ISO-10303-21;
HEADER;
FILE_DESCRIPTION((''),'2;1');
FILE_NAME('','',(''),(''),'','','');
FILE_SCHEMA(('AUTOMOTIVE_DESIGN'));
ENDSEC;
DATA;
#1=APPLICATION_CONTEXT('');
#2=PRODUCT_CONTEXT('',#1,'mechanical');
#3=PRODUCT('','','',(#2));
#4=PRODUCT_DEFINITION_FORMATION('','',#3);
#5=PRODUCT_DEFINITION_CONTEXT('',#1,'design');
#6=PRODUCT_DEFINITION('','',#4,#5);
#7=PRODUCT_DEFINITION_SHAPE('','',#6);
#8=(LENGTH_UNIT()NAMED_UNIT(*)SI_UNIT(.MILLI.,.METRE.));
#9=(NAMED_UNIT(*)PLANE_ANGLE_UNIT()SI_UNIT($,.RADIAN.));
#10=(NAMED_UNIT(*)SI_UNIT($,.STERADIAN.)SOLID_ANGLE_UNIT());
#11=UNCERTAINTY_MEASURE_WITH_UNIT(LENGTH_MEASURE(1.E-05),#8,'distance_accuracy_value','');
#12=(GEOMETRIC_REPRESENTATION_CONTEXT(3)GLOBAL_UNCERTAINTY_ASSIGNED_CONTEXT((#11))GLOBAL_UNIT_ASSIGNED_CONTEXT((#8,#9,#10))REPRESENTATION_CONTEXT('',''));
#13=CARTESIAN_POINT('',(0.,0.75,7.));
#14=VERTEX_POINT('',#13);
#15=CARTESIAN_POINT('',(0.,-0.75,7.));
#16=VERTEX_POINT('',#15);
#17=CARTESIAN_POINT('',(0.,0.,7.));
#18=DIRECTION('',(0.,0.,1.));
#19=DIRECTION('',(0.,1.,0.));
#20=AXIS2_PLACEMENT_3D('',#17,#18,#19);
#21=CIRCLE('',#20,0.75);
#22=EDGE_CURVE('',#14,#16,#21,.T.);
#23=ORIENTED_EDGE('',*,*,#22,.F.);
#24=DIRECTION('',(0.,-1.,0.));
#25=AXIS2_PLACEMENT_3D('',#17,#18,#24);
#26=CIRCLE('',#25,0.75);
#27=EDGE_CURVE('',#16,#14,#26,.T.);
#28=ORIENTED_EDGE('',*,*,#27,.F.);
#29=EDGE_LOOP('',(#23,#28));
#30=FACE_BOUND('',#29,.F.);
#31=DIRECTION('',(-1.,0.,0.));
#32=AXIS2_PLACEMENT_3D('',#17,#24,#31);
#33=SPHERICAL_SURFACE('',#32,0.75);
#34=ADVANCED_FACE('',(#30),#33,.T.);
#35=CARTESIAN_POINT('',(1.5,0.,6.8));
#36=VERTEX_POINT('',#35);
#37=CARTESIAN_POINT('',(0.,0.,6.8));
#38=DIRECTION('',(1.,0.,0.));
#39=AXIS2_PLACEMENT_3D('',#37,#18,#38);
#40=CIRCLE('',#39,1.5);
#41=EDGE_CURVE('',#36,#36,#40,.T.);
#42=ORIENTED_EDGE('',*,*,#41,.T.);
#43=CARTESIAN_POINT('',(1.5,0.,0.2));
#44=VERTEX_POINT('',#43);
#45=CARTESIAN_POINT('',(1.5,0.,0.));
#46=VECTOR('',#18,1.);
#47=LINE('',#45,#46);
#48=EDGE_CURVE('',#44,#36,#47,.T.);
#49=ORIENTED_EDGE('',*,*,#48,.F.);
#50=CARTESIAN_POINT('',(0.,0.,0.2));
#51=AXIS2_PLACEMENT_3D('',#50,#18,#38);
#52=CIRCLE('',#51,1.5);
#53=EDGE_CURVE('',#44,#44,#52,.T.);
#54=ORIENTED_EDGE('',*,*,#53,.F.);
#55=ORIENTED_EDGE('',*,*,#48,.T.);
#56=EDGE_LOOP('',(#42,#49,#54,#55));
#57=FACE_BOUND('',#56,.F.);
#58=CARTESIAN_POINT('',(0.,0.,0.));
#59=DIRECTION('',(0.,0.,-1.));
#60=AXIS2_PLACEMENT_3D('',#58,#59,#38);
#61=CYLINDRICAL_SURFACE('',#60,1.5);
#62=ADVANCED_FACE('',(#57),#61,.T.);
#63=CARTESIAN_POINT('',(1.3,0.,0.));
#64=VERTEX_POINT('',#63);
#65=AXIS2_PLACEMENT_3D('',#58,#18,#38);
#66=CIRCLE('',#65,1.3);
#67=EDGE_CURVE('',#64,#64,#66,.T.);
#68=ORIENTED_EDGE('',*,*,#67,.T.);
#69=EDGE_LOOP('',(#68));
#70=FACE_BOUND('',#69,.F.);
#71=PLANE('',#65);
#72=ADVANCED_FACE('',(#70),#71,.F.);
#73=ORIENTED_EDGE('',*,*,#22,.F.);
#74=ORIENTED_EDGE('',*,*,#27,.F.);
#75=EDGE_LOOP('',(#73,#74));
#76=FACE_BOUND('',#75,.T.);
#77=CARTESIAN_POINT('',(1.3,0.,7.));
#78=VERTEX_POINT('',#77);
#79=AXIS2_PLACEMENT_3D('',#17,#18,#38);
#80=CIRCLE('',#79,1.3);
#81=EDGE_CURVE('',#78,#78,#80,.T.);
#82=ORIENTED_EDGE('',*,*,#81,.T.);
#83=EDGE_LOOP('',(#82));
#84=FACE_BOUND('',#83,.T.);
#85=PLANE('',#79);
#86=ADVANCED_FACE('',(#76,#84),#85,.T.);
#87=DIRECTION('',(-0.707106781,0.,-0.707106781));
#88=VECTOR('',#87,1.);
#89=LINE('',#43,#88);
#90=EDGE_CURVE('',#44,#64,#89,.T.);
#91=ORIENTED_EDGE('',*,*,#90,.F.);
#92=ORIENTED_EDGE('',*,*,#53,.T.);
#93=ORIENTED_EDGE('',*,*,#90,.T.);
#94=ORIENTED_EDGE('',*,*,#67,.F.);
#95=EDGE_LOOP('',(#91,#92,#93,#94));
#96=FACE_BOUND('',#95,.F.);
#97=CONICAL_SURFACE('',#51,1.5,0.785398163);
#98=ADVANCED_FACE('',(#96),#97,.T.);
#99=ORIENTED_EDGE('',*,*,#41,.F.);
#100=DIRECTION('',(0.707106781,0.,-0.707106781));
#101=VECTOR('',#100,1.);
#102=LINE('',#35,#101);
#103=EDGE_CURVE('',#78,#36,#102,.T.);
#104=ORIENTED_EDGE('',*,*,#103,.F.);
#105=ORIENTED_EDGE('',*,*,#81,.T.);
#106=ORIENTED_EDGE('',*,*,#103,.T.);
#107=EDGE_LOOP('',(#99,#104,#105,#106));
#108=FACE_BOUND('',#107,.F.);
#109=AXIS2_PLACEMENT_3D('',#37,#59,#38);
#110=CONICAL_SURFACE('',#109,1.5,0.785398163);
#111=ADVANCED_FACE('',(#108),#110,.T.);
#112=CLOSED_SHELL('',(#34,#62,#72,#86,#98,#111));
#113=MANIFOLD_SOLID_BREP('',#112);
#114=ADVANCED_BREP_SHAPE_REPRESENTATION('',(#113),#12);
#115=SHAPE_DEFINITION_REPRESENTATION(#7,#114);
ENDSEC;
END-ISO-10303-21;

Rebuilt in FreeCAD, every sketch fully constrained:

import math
import FreeCAD as App
import Part
import Sketcher


def edges_at(feature, points):
    """Names of the edges that pass closest to the given points."""
    edges = feature.Shape.Edges
    near = lambda p: min(range(len(edges)), key=lambda i: edges[i].distToShape(Part.Vertex(*p))[0])
    return sorted({f"Edge{near(p) + 1}" for p in points})

doc = App.newDocument("Part")
body = doc.addObject("PartDesign::Body", "Body")

# Sketch on XY plane
sketch1 = body.newObject("Sketcher::SketchObject", "Sketch")
sketch1.AttachmentSupport = (doc.getObject("XY_Plane"), [""])
sketch1.MapMode = "FlatFace"
sketch1.addGeometry(Part.Circle(App.Vector(0, 0, 0), App.Vector(0, 0, 1), 1.5), False)
sketch1.addConstraint([
    Sketcher.Constraint("Coincident", 0, 3, -1, 1),
    Sketcher.Constraint("Diameter", 0, 3.0),
])
pad1 = body.newObject("PartDesign::Pad", "Pad")
pad1.Profile = sketch1
pad1.Length = 7

# Sketch on XY plane
sketch2 = body.newObject("Sketcher::SketchObject", "Sketch001")
sketch2.AttachmentSupport = (doc.getObject("XY_Plane"), [""])
sketch2.MapMode = "FlatFace"
sketch2.AttachmentOffset = App.Placement(App.Vector(0, 0, 7), App.Rotation())
sketch2.addGeometry([
    Part.LineSegment(App.Vector(0, -0.8, 0), App.Vector(0, 0.8, 0)),
    Part.ArcOfCircle(Part.Circle(App.Vector(0, 0, 0), App.Vector(0, 0, 1), 0.8), math.radians(90), math.radians(270)),
], False)
sketch2.addConstraint([
    Sketcher.Constraint("Coincident", 0, 1, 1, 2),
    Sketcher.Constraint("Coincident", 1, 1, 0, 2),
    Sketcher.Constraint("Vertical", 0),
    Sketcher.Constraint("Coincident", 1, 3, -1, 1),
    Sketcher.Constraint("PointOnObject", 0, 1, -2),
    Sketcher.Constraint("Radius", 1, 0.75),
])
revolution = body.newObject("PartDesign::Revolution", "Revolution")
revolution.Profile = sketch2
revolution.ReferenceAxis = (sketch2, ["V_Axis"])
revolution.Angle = 360
doc.recompute()

chamfer = body.newObject("PartDesign::Chamfer", "Chamfer")
chamfer.Base = (revolution, edges_at(revolution, [(-1.5, 0, 7), (-1.5, 0, 0)]))
chamfer.Size = 0.2

doc.recompute()
